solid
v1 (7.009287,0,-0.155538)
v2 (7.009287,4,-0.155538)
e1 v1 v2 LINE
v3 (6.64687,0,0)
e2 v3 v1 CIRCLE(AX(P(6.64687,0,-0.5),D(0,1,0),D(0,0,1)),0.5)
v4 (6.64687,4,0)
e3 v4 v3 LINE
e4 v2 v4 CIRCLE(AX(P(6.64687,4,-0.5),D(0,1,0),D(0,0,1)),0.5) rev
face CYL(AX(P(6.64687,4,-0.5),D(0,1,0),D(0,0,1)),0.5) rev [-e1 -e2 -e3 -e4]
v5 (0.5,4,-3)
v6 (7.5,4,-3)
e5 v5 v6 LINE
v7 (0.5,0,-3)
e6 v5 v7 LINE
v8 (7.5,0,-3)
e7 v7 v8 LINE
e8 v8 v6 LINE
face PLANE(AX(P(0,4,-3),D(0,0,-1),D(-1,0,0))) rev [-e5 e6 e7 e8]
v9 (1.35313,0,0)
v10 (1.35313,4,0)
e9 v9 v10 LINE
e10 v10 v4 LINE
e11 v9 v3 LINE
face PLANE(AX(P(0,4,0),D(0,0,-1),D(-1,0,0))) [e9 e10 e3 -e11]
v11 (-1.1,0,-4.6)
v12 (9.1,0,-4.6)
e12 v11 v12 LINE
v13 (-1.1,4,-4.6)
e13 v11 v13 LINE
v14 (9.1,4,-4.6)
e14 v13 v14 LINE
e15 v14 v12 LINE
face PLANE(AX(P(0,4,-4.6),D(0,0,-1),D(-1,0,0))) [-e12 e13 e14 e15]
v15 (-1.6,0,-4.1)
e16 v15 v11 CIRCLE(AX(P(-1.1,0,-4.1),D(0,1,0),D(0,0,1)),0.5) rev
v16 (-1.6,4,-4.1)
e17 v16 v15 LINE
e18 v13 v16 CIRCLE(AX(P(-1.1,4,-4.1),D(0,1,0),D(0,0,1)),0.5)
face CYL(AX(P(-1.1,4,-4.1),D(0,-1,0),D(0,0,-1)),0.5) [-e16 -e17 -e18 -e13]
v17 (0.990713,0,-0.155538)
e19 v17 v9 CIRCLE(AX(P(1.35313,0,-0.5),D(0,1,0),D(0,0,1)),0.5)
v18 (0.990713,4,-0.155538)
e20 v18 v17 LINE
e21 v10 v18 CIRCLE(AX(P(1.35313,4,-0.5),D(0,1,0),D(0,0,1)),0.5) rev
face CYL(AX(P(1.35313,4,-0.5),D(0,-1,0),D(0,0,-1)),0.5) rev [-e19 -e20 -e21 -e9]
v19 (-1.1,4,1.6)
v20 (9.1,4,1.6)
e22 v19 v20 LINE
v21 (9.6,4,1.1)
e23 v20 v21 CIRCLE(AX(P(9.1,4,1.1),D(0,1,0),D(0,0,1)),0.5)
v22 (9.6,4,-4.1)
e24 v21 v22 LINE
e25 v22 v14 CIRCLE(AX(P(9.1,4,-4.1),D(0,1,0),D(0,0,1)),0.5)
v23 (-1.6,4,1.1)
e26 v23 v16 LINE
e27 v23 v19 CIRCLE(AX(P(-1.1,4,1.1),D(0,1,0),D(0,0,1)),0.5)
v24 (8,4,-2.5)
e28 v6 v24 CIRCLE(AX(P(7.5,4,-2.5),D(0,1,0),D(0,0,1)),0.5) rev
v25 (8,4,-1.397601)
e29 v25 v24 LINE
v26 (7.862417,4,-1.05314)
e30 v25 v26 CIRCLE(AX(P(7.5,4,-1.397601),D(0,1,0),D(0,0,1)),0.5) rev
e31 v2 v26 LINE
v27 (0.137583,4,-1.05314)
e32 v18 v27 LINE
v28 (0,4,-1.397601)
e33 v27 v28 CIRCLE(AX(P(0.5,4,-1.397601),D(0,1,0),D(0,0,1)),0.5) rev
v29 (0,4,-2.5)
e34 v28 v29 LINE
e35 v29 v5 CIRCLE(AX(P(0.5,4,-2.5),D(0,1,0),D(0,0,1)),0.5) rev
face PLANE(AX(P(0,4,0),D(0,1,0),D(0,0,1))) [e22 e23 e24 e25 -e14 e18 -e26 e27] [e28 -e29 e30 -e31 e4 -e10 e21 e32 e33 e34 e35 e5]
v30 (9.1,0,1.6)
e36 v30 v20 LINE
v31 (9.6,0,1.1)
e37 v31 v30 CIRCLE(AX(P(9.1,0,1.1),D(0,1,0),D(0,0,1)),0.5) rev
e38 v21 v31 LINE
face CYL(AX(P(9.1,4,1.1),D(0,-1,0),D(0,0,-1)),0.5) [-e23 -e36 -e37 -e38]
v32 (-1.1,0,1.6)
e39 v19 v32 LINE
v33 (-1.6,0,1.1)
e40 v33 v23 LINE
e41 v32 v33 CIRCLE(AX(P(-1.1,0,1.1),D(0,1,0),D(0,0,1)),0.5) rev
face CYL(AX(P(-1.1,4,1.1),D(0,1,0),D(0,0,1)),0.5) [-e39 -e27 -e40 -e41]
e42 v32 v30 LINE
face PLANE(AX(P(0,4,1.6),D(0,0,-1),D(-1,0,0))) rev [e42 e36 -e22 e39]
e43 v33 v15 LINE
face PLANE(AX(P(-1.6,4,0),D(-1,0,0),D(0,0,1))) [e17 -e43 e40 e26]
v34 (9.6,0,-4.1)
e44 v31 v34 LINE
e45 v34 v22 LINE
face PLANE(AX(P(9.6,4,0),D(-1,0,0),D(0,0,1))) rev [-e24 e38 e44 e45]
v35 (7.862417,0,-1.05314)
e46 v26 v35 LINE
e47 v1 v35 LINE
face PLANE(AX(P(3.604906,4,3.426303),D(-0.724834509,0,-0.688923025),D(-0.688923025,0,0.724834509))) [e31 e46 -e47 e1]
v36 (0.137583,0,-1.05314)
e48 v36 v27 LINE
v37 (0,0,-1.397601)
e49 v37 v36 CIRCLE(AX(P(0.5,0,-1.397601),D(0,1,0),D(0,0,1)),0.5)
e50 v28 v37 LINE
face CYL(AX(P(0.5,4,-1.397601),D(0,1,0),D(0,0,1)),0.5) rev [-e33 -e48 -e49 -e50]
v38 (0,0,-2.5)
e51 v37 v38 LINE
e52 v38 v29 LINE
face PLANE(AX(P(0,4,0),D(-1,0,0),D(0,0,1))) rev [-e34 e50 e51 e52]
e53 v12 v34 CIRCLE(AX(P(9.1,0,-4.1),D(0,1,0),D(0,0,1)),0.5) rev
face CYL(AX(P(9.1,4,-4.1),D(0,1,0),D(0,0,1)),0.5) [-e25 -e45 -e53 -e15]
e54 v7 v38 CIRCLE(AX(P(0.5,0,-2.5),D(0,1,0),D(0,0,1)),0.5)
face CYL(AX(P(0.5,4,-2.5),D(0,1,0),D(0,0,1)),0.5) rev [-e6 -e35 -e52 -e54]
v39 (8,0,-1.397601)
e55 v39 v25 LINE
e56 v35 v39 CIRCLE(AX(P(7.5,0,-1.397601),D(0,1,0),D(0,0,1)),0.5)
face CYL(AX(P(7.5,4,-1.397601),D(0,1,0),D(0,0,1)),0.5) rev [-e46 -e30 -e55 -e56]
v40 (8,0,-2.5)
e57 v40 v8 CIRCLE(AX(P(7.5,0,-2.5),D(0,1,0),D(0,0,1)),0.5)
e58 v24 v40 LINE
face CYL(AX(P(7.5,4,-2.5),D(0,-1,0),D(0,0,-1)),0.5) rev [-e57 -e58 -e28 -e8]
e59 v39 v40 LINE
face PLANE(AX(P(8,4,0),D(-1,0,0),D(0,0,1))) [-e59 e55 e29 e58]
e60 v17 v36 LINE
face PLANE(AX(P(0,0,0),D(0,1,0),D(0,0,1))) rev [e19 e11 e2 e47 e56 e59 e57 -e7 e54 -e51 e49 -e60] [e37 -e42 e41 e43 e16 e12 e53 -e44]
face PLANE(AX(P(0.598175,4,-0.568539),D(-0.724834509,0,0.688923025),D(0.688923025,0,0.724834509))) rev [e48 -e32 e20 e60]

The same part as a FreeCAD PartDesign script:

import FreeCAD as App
import Part
import Sketcher
from FreeCAD import Vector
Q = App.Units.Quantity


def edges_at(feature, points):
    """Names of the edges that pass closest to the given points."""
    edges = feature.Shape.Edges
    near = lambda p: min(range(len(edges)), key=lambda i: edges[i].distToShape(Part.Vertex(*p))[0])
    return sorted({f"Edge{near(p) + 1}" for p in points})


def add_polygon(sketch, points):
    """Adds a closed chain of lines whose ends are joined by coincident constraints."""
    first, n = sketch.GeometryCount, len(points)
    for a, b in zip(points, points[1:] + points[:1]):
        sketch.addGeometry(Part.LineSegment(App.Vector(*a, 0), App.Vector(*b, 0)), False)
    for i in range(n):
        sketch.addConstraint(Sketcher.Constraint("Coincident", first + i, 2, first + (i + 1) % n, 1))

doc = App.newDocument("Part")
body = doc.addObject("PartDesign::Body", "Body")

sketch1 = body.newObject("Sketcher::SketchObject", "Sketch")
sketch1.AttachmentSupport = (doc.getObject("XZ_Plane"), [""])
sketch1.MapMode = "FlatFace"
add_polygon(sketch1, [(-1.6, -4.6), (-1.6, 1.6), (9.6, 1.6), (9.6, -4.6)])
add_polygon(sketch1, [(0, -3), (8, -3), (8, -1.2), (6.9, 0), (1.1, 0), (0, -1.2)])
sketch1.addConstraint(Sketcher.Constraint("Vertical", 0))
sketch1.addConstraint(Sketcher.Constraint("Horizontal", 1))
sketch1.addConstraint(Sketcher.Constraint("Vertical", 2))
sketch1.addConstraint(Sketcher.Constraint("Horizontal", 3))
sketch1.addConstraint(Sketcher.Constraint("Horizontal", 4))
sketch1.addConstraint(Sketcher.Constraint("Vertical", 5))
sketch1.addConstraint(Sketcher.Constraint("Horizontal", 7))
sketch1.addConstraint(Sketcher.Constraint("Vertical", 9))
sketch1.addConstraint(Sketcher.Constraint("PointOnObject", 6, 2, -1))
sketch1.addConstraint(Sketcher.Constraint("PointOnObject", 8, 2, -2))
sketch1.addConstraint(Sketcher.Constraint("Horizontal", 5, 2, 8, 2))
sketch1.addConstraint(Sketcher.Constraint("Equal", 6, 8))
sketch1.addConstraint(Sketcher.Constraint("DistanceX", 4, 1, 4, 2, Q("8 mm")))
sketch1.addConstraint(Sketcher.Constraint("DistanceX", 1, 1, 1, 2, Q("11.2 mm")))
sketch1.addConstraint(Sketcher.Constraint("DistanceY", 0, 1, 0, 2, Q("6.2 mm")))
sketch1.addConstraint(Sketcher.Constraint("DistanceY", 4, 2, -1, 1, Q("3 mm")))
sketch1.addConstraint(Sketcher.Constraint("DistanceX", 0, 2, -1, 1, Q("1.6 mm")))
sketch1.addConstraint(Sketcher.Constraint("DistanceY", -1, 1, 0, 2, Q("1.6 mm")))
sketch1.addConstraint(Sketcher.Constraint("DistanceX", 7, 2, 7, 1, Q("5.722909 mm")))
sketch1.addConstraint(Sketcher.Constraint("DistanceY", 5, 1, 5, 2, Q("1.802106 mm")))
pad1 = body.newObject("PartDesign::Pad", "Pad")
pad1.Profile = sketch1
pad1.Length = 4
pad1.Reversed = True
doc.recompute()

fillet = body.newObject("PartDesign::Fillet", "Fillet")
fillet.Base = (pad1, edges_at(pad1, [(8, 2, -3), (0, 2, -3)]))
fillet.Radius = 0.5
doc.recompute()

fillet2 = body.newObject("PartDesign::Fillet", "Fillet001")
fillet2.Base = (fillet, edges_at(fillet, [
    (9.6, 2, -4.6),
    (9.6, 2, 1.6),
    (-1.6, 2, 1.6),
    (-1.6, 2, -4.6),
    (6.861, 2, 0),
    (8, 2, -1.198),
    (0, 2, -1.198),
    (1.139, 2, 0),
]))
fillet2.Radius = 0.5

doc.recompute()
